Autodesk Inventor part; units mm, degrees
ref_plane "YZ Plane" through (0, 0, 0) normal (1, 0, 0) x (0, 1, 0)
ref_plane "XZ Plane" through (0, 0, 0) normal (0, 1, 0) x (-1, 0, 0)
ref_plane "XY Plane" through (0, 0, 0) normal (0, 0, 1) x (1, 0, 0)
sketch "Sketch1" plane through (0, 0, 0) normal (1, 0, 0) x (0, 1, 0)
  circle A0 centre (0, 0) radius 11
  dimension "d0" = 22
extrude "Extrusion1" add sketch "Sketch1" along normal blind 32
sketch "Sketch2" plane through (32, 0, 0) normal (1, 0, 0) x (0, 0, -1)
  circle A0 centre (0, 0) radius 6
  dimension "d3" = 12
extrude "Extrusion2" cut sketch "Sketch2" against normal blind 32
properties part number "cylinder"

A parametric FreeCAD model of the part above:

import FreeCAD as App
import Part
import Sketcher

V = App.Vector

doc = App.newDocument("Part")
body = doc.addObject("PartDesign::Body", "Body")

# Sketch on YZ plane
sketch1 = body.newObject("Sketcher::SketchObject", "Sketch")
sketch1.AttachmentSupport = (doc.getObject("YZ_Plane"), [""])
sketch1.MapMode = "FlatFace"
sketch1.addGeometry(Part.Circle(V(0, 0, 0), V(0, 0, 1), 11), False)
sketch1.addConstraint(Sketcher.Constraint("Coincident", 0, 3, -1, 1))
sketch1.addConstraint(Sketcher.Constraint("Diameter", 0, 22.0))
pad1 = body.newObject("PartDesign::Pad", "Pad")
pad1.Profile = sketch1
pad1.Length = 32

# Sketch on YZ plane
sketch2 = body.newObject("Sketcher::SketchObject", "Sketch001")
sketch2.AttachmentSupport = (doc.getObject("YZ_Plane"), [""])
sketch2.MapMode = "FlatFace"
sketch2.AttachmentOffset = App.Placement(V(0, 0, 32), App.Rotation())
sketch2.addGeometry(Part.Circle(V(0, 0, 0), V(0, 0, 1), 6), False)
sketch2.addConstraint(Sketcher.Constraint("Coincident", 0, 3, -1, 1))
sketch2.addConstraint(Sketcher.Constraint("Diameter", 0, 12.0))
pocket1 = body.newObject("PartDesign::Pocket", "Pocket")
pocket1.Profile = sketch2
pocket1.Length = 32

doc.recompute()
